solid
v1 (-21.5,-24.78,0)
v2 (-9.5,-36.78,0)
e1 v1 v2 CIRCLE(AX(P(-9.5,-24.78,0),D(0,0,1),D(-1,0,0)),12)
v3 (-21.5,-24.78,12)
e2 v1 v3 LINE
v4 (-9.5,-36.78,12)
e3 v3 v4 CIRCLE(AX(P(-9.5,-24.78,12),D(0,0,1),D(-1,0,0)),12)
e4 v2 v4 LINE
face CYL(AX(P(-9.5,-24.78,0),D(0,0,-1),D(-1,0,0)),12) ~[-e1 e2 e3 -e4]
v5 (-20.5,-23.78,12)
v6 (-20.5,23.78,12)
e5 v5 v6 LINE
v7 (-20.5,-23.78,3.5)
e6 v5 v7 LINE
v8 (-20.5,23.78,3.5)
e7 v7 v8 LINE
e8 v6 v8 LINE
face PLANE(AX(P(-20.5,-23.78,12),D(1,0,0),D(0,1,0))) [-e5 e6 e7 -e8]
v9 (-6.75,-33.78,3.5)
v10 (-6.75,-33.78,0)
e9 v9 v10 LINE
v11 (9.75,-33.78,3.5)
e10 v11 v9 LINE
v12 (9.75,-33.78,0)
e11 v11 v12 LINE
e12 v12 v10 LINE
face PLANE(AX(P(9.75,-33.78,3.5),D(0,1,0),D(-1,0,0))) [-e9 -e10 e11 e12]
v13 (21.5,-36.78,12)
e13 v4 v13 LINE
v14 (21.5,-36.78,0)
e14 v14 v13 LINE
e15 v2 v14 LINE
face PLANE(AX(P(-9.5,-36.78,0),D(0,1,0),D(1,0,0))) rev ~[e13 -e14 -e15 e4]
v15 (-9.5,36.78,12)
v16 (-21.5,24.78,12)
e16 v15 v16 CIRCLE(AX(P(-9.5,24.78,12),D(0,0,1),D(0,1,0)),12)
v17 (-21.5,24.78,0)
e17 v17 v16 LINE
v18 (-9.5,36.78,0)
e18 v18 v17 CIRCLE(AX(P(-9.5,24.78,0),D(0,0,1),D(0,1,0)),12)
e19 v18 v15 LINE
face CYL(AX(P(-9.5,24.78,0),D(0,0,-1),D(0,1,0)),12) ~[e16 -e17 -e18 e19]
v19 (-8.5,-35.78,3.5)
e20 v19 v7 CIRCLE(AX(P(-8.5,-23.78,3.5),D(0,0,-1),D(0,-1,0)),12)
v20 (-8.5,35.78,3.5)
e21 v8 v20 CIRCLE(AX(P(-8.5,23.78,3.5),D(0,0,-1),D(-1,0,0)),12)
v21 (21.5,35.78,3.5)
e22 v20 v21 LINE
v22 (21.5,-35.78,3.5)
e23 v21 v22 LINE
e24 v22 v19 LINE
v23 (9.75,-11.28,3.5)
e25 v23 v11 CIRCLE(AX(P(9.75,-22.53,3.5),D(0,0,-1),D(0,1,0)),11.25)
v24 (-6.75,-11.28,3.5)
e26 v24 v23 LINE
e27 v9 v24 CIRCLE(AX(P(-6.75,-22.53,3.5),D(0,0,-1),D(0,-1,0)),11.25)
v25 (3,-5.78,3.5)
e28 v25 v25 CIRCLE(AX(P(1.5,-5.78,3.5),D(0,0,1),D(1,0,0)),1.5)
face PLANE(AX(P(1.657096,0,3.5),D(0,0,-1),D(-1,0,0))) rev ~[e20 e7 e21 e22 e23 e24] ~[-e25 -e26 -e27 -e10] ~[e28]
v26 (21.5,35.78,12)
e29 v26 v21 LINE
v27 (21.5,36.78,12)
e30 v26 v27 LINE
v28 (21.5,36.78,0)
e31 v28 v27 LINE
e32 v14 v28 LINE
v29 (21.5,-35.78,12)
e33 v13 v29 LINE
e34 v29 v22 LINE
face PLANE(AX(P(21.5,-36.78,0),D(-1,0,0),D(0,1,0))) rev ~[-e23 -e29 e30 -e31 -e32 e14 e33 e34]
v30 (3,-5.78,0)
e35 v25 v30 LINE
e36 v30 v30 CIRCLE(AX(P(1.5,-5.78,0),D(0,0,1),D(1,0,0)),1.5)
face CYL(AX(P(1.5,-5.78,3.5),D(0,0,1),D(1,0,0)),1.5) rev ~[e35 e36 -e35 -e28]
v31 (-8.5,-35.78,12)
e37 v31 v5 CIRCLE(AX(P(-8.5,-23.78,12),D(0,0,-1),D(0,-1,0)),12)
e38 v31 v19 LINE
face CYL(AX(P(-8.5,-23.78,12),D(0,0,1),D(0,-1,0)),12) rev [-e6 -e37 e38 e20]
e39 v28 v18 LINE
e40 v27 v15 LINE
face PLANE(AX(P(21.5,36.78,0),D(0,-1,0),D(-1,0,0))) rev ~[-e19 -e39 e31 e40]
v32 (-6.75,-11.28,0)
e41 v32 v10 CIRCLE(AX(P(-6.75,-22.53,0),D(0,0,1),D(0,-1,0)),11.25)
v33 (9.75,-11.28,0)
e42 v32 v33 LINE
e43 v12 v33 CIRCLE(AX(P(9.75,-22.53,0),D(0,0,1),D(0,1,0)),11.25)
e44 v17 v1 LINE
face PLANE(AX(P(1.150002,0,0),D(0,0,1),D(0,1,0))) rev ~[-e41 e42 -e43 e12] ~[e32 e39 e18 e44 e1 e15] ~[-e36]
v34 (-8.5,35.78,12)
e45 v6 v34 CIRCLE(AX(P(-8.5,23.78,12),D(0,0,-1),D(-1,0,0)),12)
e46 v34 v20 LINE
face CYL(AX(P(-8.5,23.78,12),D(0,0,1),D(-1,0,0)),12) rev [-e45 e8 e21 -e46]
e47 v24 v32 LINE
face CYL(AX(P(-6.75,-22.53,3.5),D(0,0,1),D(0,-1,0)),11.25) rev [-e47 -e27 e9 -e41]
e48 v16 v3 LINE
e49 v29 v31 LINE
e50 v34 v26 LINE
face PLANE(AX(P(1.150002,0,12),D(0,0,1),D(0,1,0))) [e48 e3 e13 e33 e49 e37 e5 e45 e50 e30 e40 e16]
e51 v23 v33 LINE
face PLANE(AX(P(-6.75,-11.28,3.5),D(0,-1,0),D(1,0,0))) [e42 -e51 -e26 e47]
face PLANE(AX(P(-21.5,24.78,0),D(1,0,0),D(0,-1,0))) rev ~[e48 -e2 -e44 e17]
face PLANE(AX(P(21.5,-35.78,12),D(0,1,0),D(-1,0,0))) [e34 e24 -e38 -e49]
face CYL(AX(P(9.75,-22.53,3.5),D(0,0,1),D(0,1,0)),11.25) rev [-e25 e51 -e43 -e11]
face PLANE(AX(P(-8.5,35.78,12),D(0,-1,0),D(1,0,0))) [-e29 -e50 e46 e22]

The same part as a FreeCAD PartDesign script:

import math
import FreeCAD as App
import Part
import Sketcher

V = App.Vector

doc = App.newDocument("Part")
params = doc.addObject("Spreadsheet::Sheet", "Params")
for row, (alias, value) in enumerate([
    ("sketch1_radius", "12 mm"),
    ("sketch1_width", "31 mm"),
    ("sketch1_height", "73.56 mm"),
    ("pad1_length", "12 mm"),
    ("sketch2_radius", "12 mm"),
    ("sketch2_width", "30 mm"),
    ("sketch2_height", "71.56 mm"),
    ("pocket1_length", "8.5 mm"),
    ("sketch3_diameter", "3 mm"),
    ("sketch3_radius", "11.25 mm"),
    ("sketch3_width", "16.5 mm"),
    ("pocket2_length", "8.5 mm"),
], start=1):
    params.set(f"A{row}", alias)
    params.set(f"B{row}", "=" + value)
    params.setAlias(f"B{row}", alias)

body = doc.addObject("PartDesign::Body", "Body")

# Sketch on XY plane
sketch1 = body.newObject("Sketcher::SketchObject", "Sketch")
sketch1.AttachmentSupport = (doc.getObject("XY_Plane"), [""])
sketch1.MapMode = "FlatFace"
sketch1.addGeometry([
    Part.LineSegment(V(22, -37, 0), V(22, 37, 0)),  # 0
    Part.LineSegment(V(22, 37, 0), V(-10, 37, 0)),  # 1
    Part.ArcOfCircle(Part.Circle(V(-9, 25, 0), V(0, 0, 1), 12), math.radians(90), math.radians(180)),  # 2
    Part.LineSegment(V(-22, 25, 0), V(-22, -25, 0)),  # 3
    Part.ArcOfCircle(Part.Circle(V(-9, -25, 0), V(0, 0, 1), 12), math.radians(-180), math.radians(-90)),  # 4
    Part.LineSegment(V(-10, -37, 0), V(22, -37, 0)),  # 5
], False)
sketch1.addConstraint([
    Sketcher.Constraint("Coincident", 0, 2, 1, 1),
    Sketcher.Constraint("Tangent", 1, 2, 2, 1),
    Sketcher.Constraint("Tangent", 2, 2, 3, 1),
    Sketcher.Constraint("Tangent", 3, 2, 4, 1),
    Sketcher.Constraint("Tangent", 4, 2, 5, 1),
    Sketcher.Constraint("Coincident", 5, 2, 0, 1),
    Sketcher.Constraint("Vertical", 0),
    Sketcher.Constraint("Horizontal", 1),
    Sketcher.Constraint("Vertical", 3),
    Sketcher.Constraint("Horizontal", 5),
    Sketcher.Constraint("Equal", 2, 4),
    Sketcher.Constraint("Radius", 2, 12.0),
    Sketcher.Constraint("DistanceX", 1, 2, 1, 1, 31.0),
    Sketcher.Constraint("DistanceY", 0, 1, 0, 2, 73.56),
    Sketcher.Constraint("DistanceX", 2, 3, -1, 1, 9.5),
    Sketcher.Constraint("DistanceY", -1, 1, 2, 3, 24.78),
])
sketch1.setExpression("Constraints[11]", "Params.sketch1_radius")
sketch1.setExpression("Constraints[12]", "Params.sketch1_width")
sketch1.setExpression("Constraints[13]", "Params.sketch1_height")
pad1 = body.newObject("PartDesign::Pad", "Pad")
pad1.Profile = sketch1
pad1.setExpression("Length", "Params.pad1_length")

# Sketch on XY plane
sketch2 = body.newObject("Sketcher::SketchObject", "Sketch001")
sketch2.AttachmentSupport = (doc.getObject("XY_Plane"), [""])
sketch2.MapMode = "FlatFace"
sketch2.AttachmentOffset = App.Placement(V(0, 0, 12), App.Rotation())
sketch2.addGeometry([
    Part.LineSegment(V(-8, -36, 0), V(22, -36, 0)),  # 0
    Part.LineSegment(V(22, -36, 0), V(22, 36, 0)),  # 1
    Part.LineSegment(V(22, 36, 0), V(-8, 36, 0)),  # 2
    Part.ArcOfCircle(Part.Circle(V(-8, 24, 0), V(0, 0, 1), 12), math.radians(90), math.radians(180)),  # 3
    Part.LineSegment(V(-20, 24, 0), V(-20, -24, 0)),  # 4
    Part.ArcOfCircle(Part.Circle(V(-8, -24, 0), V(0, 0, 1), 12), math.radians(-180), math.radians(-90)),  # 5
], False)
sketch2.addConstraint([
    Sketcher.Constraint("Coincident", 0, 2, 1, 1),
    Sketcher.Constraint("Coincident", 1, 2, 2, 1),
    Sketcher.Constraint("Tangent", 2, 2, 3, 1),
    Sketcher.Constraint("Tangent", 3, 2, 4, 1),
    Sketcher.Constraint("Tangent", 4, 2, 5, 1),
    Sketcher.Constraint("Tangent", 5, 2, 0, 1),
    Sketcher.Constraint("Horizontal", 0),
    Sketcher.Constraint("Vertical", 1),
    Sketcher.Constraint("Horizontal", 2),
    Sketcher.Constraint("Vertical", 4),
    Sketcher.Constraint("Equal", 3, 5),
    Sketcher.Constraint("Radius", 3, 12.0),
    Sketcher.Constraint("DistanceX", 0, 1, 0, 2, 30.0),
    Sketcher.Constraint("DistanceY", 1, 1, 1, 2, 71.56),
    Sketcher.Constraint("DistanceX", 3, 3, -1, 1, 8.5),
    Sketcher.Constraint("DistanceY", -1, 1, 3, 3, 23.78),
])
sketch2.setExpression("Constraints[11]", "Params.sketch2_radius")
sketch2.setExpression("Constraints[12]", "Params.sketch2_width")
sketch2.setExpression("Constraints[13]", "Params.sketch2_height")
pocket1 = body.newObject("PartDesign::Pocket", "Pocket")
pocket1.Profile = sketch2
pocket1.setExpression("Length", "Params.pocket1_length")

# Sketch on XY plane
sketch3 = body.newObject("Sketcher::SketchObject", "Sketch002")
sketch3.AttachmentSupport = (doc.getObject("XY_Plane"), [""])
sketch3.MapMode = "FlatFace"
sketch3.AttachmentOffset = App.Placement(V(0, 0, 3.5), App.Rotation())
sketch3.addGeometry([
    Part.Circle(V(1.5, -5.8, 0), V(0, 0, 1), 1.5),  # 0
    Part.LineSegment(V(-6.8, -33.8, 0), V(9.8, -33.8, 0)),  # 1
    Part.ArcOfCircle(Part.Circle(V(9.8, -22.5, 0), V(0, 0, 1), 11.2), math.radians(-90), math.radians(90)),  # 2
    Part.LineSegment(V(9.8, -11.3, 0), V(-6.8, -11.3, 0)),  # 3
    Part.ArcOfCircle(Part.Circle(V(-6.8, -22.5, 0), V(0, 0, 1), 11.2), math.radians(90), math.radians(270)),  # 4
], False)
sketch3.addConstraint([
    Sketcher.Constraint("Tangent", 1, 2, 2, 1),
    Sketcher.Constraint("Tangent", 2, 2, 3, 1),
    Sketcher.Constraint("Tangent", 3, 2, 4, 1),
    Sketcher.Constraint("Tangent", 4, 2, 1, 1),
    Sketcher.Constraint("Horizontal", 1),
    Sketcher.Constraint("Horizontal", 3),
    Sketcher.Constraint("Diameter", 0, 3.0),
    Sketcher.Constraint("Radius", 2, 11.25),
    Sketcher.Constraint("DistanceX", 1, 1, 1, 2, 16.5),
    Sketcher.Constraint("DistanceY", 1, 2, 0, 3, 28.0),
    Sketcher.Constraint("DistanceX", -1, 1, 0, 3, 1.5),
    Sketcher.Constraint("DistanceY", 0, 3, -1, 1, 5.78),
    Sketcher.Constraint("DistanceX", -1, 1, 2, 3, 9.75),
])
sketch3.setExpression("Constraints[6]", "Params.sketch3_diameter")
sketch3.setExpression("Constraints[7]", "Params.sketch3_radius")
sketch3.setExpression("Constraints[8]", "Params.sketch3_width")
pocket2 = body.newObject("PartDesign::Pocket", "Pocket001")
pocket2.Profile = sketch3
pocket2.setExpression("Length", "Params.pocket2_length")

doc.recompute()
